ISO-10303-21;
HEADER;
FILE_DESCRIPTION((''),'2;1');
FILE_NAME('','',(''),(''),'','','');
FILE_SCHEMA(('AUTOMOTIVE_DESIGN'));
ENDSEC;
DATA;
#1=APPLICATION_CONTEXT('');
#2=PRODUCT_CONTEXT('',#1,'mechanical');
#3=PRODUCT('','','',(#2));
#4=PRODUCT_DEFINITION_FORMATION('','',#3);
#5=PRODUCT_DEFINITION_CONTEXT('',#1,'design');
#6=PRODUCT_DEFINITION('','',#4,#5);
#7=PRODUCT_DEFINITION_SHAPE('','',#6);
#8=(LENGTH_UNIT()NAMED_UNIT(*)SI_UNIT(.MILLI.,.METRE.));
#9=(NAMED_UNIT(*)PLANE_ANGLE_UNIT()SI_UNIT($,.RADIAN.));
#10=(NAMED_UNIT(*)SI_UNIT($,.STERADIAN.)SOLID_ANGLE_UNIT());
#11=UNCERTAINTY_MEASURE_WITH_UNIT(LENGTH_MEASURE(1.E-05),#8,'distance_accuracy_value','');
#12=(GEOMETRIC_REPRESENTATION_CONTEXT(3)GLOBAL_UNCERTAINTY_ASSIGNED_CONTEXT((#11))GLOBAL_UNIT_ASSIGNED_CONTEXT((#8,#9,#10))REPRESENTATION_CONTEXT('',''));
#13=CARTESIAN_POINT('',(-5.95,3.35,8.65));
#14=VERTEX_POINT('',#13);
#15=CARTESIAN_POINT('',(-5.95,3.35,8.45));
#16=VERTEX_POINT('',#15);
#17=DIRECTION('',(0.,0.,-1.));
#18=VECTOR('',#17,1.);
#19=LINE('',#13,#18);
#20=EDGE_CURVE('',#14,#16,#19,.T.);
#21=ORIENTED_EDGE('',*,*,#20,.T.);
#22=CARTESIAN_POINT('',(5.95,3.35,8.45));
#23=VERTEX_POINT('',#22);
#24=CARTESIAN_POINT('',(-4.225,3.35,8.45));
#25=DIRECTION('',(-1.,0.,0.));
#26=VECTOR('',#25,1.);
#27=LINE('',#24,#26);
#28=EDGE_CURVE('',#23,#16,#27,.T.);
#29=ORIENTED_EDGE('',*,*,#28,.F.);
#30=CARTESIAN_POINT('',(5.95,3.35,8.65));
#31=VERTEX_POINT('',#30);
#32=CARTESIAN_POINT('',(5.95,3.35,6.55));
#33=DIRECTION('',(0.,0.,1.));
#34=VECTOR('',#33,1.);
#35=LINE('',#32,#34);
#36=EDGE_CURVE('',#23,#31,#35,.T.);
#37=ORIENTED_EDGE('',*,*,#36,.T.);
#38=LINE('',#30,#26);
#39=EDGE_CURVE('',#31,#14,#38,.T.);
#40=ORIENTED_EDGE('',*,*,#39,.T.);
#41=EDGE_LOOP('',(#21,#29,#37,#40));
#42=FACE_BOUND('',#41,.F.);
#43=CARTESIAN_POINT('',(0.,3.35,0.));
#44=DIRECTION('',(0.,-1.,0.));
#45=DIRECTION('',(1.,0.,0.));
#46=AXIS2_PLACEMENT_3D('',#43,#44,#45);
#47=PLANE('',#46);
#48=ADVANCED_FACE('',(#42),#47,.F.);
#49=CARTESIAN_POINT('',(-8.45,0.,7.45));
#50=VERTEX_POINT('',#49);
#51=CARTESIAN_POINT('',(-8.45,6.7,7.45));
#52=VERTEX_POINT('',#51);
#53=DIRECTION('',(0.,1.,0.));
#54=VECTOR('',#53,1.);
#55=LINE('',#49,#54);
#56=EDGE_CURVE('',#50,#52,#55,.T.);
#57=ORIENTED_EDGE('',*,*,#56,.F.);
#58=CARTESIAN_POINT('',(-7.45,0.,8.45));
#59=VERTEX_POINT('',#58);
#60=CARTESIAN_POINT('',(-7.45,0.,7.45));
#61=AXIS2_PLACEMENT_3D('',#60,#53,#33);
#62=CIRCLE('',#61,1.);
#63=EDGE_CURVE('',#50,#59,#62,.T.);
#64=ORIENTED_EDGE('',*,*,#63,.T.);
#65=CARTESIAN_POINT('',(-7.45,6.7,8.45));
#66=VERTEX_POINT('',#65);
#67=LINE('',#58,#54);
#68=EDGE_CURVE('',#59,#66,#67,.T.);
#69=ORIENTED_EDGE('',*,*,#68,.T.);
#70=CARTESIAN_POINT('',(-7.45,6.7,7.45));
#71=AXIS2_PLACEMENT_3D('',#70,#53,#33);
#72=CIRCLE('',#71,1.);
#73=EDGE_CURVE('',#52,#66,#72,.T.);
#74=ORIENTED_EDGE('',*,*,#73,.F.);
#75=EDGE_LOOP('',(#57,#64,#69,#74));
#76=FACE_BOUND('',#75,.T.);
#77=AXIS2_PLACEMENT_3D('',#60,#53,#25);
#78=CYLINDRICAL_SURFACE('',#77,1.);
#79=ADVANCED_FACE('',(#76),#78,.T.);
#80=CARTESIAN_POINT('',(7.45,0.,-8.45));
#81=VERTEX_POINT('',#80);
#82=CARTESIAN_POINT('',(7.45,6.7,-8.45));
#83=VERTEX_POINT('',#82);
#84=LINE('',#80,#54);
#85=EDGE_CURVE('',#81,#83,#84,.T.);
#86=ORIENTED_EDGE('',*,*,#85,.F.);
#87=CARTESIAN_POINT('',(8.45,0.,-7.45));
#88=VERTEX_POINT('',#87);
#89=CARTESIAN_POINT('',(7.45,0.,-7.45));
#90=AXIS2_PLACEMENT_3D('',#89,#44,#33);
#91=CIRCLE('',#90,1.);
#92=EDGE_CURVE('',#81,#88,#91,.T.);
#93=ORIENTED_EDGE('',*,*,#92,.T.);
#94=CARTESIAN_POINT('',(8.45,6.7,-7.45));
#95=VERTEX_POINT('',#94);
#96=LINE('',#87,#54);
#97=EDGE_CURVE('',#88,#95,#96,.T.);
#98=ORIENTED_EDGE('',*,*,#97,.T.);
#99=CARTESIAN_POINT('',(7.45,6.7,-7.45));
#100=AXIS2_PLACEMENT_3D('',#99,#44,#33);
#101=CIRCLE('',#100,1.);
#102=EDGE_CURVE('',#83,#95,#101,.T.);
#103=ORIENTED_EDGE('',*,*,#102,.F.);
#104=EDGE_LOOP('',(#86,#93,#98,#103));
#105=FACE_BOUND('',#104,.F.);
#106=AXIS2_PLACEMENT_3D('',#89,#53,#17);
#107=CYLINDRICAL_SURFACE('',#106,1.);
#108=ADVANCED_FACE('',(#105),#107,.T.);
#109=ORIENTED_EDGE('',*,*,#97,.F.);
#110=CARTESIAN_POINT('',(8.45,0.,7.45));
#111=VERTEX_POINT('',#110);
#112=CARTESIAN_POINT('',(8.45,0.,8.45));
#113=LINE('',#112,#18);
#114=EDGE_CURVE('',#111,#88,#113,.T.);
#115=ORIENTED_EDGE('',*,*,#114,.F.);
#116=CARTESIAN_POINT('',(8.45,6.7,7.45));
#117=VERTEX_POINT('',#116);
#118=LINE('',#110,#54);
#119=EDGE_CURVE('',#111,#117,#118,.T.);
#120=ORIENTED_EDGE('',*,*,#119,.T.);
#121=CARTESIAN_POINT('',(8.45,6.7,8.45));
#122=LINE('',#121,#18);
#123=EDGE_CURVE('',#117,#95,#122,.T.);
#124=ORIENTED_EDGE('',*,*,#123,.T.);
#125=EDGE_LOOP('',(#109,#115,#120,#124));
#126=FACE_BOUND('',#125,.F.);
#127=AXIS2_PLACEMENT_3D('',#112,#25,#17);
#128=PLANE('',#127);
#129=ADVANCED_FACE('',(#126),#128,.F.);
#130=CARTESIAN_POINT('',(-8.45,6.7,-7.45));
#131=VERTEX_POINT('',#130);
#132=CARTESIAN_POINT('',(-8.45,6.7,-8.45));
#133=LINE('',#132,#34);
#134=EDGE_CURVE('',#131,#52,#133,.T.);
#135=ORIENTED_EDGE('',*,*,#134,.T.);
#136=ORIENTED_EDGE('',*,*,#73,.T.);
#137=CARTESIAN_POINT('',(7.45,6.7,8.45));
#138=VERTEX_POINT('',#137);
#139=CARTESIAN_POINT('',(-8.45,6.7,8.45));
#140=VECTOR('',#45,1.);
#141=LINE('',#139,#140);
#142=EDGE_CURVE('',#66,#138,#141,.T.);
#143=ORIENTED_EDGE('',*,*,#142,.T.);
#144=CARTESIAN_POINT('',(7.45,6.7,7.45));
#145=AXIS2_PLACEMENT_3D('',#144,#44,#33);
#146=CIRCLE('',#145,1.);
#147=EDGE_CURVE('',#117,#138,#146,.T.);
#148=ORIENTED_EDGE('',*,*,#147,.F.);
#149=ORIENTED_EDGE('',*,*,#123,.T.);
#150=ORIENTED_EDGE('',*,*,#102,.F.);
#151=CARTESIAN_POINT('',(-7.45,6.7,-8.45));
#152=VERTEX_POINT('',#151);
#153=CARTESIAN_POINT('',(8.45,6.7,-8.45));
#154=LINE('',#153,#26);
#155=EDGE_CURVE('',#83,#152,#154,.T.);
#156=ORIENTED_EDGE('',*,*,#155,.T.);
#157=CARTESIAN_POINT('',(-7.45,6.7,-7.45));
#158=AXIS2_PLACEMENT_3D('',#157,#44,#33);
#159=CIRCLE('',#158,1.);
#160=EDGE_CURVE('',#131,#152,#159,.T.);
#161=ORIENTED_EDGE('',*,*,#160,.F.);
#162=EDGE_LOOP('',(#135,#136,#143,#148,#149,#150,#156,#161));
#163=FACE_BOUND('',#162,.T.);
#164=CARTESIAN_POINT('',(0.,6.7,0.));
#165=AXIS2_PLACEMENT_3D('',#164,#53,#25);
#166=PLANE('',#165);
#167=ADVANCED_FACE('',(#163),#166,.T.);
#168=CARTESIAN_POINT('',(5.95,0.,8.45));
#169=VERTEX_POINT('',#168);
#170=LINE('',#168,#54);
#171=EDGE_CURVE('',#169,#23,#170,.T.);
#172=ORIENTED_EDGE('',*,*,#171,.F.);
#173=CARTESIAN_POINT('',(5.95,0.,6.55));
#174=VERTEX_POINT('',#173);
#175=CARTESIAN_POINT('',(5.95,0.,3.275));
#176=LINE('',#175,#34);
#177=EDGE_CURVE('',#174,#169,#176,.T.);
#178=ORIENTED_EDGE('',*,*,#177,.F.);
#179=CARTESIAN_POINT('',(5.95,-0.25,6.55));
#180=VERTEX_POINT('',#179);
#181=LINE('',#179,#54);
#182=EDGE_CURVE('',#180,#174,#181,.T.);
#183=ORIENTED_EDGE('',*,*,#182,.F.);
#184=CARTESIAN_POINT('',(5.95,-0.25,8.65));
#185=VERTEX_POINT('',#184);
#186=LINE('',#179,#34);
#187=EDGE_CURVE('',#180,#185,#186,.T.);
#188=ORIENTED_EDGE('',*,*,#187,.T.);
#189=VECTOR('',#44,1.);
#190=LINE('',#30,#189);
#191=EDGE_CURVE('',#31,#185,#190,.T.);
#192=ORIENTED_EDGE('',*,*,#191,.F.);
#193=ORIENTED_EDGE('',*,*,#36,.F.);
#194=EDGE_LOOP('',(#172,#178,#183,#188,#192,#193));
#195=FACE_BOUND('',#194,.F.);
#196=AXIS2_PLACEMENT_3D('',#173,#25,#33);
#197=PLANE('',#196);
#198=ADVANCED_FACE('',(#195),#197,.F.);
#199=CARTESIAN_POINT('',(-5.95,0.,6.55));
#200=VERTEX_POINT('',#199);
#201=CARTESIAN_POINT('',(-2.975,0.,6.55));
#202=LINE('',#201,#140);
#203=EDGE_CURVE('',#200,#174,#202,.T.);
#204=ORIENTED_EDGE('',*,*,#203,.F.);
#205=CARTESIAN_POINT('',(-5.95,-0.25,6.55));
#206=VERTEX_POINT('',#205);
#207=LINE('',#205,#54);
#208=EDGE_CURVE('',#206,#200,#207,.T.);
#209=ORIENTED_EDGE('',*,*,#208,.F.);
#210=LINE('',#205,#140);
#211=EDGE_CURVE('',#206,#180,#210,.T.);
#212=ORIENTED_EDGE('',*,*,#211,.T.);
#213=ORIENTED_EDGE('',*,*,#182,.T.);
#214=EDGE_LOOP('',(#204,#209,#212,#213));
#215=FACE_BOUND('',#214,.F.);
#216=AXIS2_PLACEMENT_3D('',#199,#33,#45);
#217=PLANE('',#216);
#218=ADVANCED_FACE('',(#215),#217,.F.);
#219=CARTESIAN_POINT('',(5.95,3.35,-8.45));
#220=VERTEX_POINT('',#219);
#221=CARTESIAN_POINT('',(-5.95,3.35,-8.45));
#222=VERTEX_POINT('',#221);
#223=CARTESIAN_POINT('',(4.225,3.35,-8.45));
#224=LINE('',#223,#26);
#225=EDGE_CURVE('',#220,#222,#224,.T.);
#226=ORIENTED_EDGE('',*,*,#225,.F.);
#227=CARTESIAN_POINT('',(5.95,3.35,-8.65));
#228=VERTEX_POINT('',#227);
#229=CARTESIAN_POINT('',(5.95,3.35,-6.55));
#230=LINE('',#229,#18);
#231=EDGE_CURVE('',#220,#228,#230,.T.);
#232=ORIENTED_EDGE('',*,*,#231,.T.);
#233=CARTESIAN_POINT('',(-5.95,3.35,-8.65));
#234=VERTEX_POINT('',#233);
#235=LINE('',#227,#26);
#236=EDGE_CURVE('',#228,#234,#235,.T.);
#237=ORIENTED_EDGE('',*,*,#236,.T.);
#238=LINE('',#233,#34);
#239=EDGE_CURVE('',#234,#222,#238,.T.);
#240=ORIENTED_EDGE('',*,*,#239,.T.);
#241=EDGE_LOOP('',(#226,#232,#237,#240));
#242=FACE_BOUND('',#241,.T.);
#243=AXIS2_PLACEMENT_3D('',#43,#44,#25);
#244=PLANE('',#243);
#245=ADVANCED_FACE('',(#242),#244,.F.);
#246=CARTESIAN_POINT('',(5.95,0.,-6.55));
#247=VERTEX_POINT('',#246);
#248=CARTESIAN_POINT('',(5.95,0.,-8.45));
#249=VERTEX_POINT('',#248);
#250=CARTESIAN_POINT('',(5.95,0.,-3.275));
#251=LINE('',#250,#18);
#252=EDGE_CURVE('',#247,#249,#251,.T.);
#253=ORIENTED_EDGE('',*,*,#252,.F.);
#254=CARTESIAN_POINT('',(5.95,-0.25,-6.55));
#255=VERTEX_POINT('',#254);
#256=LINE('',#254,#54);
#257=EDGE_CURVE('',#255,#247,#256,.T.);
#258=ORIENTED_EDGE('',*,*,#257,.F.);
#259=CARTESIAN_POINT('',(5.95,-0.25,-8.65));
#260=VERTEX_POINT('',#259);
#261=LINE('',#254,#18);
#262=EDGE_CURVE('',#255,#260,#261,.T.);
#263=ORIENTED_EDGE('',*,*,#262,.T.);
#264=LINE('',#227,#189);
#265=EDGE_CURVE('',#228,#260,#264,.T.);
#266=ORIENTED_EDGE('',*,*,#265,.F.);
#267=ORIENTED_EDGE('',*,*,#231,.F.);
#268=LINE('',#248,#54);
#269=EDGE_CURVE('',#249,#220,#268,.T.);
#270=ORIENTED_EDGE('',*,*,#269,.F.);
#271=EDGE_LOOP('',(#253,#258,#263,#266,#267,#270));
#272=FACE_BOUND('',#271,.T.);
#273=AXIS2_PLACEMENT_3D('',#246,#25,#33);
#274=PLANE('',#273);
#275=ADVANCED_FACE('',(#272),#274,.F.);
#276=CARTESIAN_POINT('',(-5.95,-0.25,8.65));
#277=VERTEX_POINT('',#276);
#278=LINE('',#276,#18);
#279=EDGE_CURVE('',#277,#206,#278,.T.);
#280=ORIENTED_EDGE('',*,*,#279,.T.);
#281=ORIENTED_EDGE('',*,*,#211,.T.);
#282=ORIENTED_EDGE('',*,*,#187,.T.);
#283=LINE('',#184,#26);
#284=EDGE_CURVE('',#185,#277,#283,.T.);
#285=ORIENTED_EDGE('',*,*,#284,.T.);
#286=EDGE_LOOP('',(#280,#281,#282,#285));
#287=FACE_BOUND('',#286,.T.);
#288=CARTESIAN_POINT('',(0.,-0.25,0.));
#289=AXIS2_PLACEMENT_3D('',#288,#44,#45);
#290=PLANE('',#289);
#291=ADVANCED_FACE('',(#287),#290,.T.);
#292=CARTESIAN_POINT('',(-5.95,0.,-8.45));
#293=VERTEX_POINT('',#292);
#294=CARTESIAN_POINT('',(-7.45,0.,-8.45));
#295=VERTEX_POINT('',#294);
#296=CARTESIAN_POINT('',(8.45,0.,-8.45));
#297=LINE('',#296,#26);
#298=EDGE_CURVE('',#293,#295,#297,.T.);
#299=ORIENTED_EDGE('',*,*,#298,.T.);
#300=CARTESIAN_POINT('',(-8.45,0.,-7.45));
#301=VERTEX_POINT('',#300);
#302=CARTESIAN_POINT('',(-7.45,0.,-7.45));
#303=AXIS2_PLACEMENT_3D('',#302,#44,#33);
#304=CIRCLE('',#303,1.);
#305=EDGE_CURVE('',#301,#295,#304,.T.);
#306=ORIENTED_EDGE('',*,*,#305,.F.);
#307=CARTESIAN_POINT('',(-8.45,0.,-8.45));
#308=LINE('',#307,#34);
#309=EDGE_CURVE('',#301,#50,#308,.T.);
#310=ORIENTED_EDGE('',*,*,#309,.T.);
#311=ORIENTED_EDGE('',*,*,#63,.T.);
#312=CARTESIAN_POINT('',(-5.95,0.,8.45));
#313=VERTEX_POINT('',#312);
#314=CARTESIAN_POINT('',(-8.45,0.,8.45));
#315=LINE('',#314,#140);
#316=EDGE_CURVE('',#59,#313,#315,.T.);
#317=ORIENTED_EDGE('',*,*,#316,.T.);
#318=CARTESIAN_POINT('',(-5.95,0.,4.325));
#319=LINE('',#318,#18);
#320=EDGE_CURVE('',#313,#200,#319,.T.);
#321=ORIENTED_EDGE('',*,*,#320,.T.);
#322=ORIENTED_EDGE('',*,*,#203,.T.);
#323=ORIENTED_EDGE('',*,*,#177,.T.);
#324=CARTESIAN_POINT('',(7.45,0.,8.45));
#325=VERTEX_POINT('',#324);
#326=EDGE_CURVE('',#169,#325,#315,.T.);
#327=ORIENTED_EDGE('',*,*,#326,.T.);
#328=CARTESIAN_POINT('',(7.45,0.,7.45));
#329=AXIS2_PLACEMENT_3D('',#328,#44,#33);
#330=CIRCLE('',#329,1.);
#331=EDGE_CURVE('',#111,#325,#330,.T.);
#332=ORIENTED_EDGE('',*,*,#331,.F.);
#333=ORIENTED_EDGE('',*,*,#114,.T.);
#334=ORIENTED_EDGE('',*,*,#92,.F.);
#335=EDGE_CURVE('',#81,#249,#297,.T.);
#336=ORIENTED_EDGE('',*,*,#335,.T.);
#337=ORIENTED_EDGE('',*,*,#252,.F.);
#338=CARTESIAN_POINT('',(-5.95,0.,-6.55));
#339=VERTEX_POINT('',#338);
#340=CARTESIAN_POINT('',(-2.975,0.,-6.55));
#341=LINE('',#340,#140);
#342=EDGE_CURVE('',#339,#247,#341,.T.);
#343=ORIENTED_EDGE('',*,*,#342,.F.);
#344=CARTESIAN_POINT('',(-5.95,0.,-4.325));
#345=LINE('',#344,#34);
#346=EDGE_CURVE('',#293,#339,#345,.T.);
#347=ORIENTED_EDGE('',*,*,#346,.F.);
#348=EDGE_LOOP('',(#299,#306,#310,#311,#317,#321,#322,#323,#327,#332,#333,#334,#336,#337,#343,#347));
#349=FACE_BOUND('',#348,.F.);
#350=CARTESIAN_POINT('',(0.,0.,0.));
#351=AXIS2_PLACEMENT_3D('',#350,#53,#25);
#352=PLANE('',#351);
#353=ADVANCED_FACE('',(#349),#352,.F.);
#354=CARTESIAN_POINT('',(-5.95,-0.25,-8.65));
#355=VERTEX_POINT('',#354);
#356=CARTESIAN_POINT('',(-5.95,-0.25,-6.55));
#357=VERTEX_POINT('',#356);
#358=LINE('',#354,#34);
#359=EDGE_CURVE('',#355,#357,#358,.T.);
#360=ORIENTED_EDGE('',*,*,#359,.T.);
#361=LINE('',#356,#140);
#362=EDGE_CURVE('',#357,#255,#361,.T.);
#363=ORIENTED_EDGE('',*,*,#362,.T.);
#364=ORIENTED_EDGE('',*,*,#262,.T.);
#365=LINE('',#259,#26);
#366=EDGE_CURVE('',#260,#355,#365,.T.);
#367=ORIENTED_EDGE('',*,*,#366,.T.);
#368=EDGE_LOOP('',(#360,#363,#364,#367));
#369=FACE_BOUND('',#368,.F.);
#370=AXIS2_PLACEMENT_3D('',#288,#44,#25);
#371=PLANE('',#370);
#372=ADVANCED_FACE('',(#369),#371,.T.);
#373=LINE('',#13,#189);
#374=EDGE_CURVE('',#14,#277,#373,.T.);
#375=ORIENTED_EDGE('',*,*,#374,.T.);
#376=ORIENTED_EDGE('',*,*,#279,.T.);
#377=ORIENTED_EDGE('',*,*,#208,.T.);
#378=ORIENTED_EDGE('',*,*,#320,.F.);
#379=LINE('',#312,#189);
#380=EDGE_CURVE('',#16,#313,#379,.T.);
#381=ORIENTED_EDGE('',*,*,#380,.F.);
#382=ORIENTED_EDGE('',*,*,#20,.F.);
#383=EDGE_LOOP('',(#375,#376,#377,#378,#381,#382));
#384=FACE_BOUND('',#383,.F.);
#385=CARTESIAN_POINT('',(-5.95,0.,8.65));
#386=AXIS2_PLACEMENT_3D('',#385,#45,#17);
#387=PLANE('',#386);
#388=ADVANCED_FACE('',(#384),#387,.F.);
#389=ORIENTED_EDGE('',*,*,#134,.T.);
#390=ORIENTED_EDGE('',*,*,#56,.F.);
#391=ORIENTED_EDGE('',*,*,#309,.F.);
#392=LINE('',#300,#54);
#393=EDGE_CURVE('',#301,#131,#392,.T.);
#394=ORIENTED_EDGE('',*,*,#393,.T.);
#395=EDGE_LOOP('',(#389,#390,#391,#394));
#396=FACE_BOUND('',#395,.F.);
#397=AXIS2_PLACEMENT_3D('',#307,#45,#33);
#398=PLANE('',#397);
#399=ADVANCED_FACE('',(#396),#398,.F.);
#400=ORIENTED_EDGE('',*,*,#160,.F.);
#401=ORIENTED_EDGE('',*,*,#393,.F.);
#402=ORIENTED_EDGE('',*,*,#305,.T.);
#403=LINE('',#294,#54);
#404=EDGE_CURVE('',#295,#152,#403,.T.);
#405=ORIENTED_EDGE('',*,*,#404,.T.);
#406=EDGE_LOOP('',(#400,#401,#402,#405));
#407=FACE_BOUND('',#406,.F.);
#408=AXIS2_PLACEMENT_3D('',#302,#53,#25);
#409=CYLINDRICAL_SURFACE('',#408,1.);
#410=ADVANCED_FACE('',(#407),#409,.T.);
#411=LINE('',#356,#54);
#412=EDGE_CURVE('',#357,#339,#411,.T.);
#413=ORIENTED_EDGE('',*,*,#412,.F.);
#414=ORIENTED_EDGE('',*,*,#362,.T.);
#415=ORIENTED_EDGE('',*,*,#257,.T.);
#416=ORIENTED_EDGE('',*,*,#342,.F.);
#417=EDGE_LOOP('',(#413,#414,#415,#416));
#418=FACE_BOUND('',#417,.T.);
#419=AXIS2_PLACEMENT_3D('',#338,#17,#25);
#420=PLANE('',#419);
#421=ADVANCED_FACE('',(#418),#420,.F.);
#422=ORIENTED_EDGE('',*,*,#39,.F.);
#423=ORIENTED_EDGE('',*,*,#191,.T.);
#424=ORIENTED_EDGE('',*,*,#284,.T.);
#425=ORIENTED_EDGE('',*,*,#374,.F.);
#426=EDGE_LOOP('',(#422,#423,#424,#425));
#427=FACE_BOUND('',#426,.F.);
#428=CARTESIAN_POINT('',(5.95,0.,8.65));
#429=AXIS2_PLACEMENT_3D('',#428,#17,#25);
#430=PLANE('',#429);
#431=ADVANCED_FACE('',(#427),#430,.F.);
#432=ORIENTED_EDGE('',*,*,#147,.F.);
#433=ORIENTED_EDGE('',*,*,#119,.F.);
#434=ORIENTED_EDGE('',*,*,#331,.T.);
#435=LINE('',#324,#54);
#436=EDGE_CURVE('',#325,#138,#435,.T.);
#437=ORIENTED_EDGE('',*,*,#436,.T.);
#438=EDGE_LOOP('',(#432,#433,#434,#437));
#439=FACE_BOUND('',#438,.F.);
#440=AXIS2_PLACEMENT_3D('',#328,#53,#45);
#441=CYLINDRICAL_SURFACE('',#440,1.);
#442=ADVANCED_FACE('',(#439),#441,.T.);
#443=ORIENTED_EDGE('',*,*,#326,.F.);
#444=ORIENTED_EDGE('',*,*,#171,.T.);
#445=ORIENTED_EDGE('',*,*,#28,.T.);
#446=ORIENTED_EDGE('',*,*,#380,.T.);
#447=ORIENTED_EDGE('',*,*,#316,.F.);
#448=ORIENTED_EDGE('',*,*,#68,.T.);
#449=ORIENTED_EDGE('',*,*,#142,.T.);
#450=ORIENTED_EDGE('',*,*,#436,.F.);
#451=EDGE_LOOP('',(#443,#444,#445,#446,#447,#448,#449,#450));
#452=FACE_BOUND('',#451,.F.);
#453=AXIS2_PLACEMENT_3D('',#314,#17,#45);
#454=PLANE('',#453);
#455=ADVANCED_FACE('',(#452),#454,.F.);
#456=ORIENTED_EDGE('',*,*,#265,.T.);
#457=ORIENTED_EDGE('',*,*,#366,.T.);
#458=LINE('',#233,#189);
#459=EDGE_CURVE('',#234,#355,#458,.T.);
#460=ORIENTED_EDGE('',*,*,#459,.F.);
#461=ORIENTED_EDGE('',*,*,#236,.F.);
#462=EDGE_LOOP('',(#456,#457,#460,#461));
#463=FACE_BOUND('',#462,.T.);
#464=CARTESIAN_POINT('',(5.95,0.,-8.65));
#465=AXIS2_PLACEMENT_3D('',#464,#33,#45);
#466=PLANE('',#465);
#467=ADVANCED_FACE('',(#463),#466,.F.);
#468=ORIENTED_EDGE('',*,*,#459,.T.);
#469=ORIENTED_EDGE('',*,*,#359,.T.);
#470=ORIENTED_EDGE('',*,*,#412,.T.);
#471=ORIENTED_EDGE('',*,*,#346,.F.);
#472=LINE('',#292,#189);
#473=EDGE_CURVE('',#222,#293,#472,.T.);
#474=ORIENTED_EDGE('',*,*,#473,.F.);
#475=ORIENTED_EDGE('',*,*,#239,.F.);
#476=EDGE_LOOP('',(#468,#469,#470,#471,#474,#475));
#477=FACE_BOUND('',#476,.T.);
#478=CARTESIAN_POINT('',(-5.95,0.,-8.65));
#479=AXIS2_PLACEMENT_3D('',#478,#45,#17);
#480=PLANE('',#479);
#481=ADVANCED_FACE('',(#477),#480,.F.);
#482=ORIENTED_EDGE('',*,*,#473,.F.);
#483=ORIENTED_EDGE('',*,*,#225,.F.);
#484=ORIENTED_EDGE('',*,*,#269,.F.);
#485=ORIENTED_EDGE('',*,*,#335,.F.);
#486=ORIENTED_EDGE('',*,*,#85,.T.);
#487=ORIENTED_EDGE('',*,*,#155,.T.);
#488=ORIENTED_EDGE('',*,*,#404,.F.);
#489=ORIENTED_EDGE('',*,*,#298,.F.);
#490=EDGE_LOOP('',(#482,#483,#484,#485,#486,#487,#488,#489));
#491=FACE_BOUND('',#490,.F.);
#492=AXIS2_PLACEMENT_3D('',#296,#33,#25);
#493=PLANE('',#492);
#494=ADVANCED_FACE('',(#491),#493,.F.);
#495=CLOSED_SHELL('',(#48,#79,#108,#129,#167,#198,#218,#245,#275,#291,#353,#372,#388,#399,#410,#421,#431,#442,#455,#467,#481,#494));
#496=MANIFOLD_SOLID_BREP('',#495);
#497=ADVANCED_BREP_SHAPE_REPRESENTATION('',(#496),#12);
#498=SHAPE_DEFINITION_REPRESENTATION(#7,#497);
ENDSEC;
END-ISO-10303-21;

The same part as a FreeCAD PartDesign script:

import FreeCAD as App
import Part
import Sketcher

V = App.Vector


def edges_at(feature, points):
    """Names of the edges that pass closest to the given points."""
    edges = feature.Shape.Edges
    near = lambda p: min(range(len(edges)), key=lambda i: edges[i].distToShape(Part.Vertex(*p))[0])
    return sorted({f"Edge{near(p) + 1}" for p in points})


def add_polygon(sketch, points):
    """Adds a closed chain of lines whose ends are joined by coincident constraints."""
    first, n = sketch.GeometryCount, len(points)
    for a, b in zip(points, points[1:] + points[:1]):
        sketch.addGeometry(Part.LineSegment(App.Vector(*a, 0), App.Vector(*b, 0)), False)
    for i in range(n):
        sketch.addConstraint(Sketcher.Constraint("Coincident", first + i, 2, first + (i + 1) % n, 1))

doc = App.newDocument("Part")
params = doc.addObject("Spreadsheet::Sheet", "Params")
for row, (alias, value) in enumerate([
    ("sketch1_width", "16.9 mm"),
    ("pad1_length", "6.7 mm"),
    ("fillet_radius", "1 mm"),
    ("sketch2_width", "11.9 mm"),
    ("sketch2_height", "2.1 mm"),
    ("pad2_length", "0.25 mm"),
    ("pad2_length2", "3.35 mm"),
], start=1):
    params.set(f"A{row}", alias)
    params.set(f"B{row}", "=" + value)
    params.setAlias(f"B{row}", alias)

body = doc.addObject("PartDesign::Body", "Body")

sketch1 = body.newObject("Sketcher::SketchObject", "Sketch")
sketch1.AttachmentSupport = (doc.getObject("XZ_Plane"), [""])
sketch1.MapMode = "FlatFace"
add_polygon(sketch1, [(-8, -8), (-8, 8), (8, 8), (8, -8)])
sketch1.addConstraint([
    Sketcher.Constraint("Vertical", 0),
    Sketcher.Constraint("Horizontal", 1),
    Sketcher.Constraint("Vertical", 2),
    Sketcher.Constraint("Horizontal", 3),
    Sketcher.Constraint("Symmetric", 0, 2, 2, 2, -1, 1),
    Sketcher.Constraint("Equal", 3, 0),
    Sketcher.Constraint("DistanceX", 1, 1, 1, 2, 16.9),
])
sketch1.setExpression("Constraints[10]", "Params.sketch1_width")
pad1 = body.newObject("PartDesign::Pad", "Pad")
pad1.Profile = sketch1
pad1.setExpression("Length", "Params.pad1_length")
pad1.Reversed = True
doc.recompute()

fillet = body.newObject("PartDesign::Fillet", "Fillet")
fillet.Base = (pad1, edges_at(pad1, [
    (8.45, 3.35, -8.45),
    (8.45, 3.35, 8.45),
    (-8.45, 3.35, 8.45),
    (-8.45, 3.35, -8.45),
]))
fillet.setExpression("Radius", "Params.fillet_radius")

sketch2 = body.newObject("Sketcher::SketchObject", "Sketch001")
sketch2.AttachmentSupport = (doc.getObject("XZ_Plane"), [""])
sketch2.MapMode = "FlatFace"
add_polygon(sketch2, [(6, 6.5), (6, 8.7), (-6, 8.7), (-6, 6.5)])
sketch2.addConstraint([
    Sketcher.Constraint("Vertical", 0),
    Sketcher.Constraint("Horizontal", 1),
    Sketcher.Constraint("Vertical", 2),
    Sketcher.Constraint("Horizontal", 3),
    Sketcher.Constraint("DistanceX", 1, 2, 1, 1, 11.9),
    Sketcher.Constraint("DistanceY", 0, 1, 0, 2, 2.1),
    Sketcher.Constraint("DistanceX", -1, 1, 0, 2, 5.95),
    Sketcher.Constraint("DistanceY", -1, 1, 0, 2, 8.65),
])
sketch2.setExpression("Constraints[8]", "Params.sketch2_width")
sketch2.setExpression("Constraints[9]", "Params.sketch2_height")
pad2 = body.newObject("PartDesign::Pad", "Pad001")
pad2.Profile = sketch2
pad2.Type = "TwoLengths"
pad2.setExpression("Length", "Params.pad2_length")
pad2.setExpression("Length2", "Params.pad2_length2")
doc.recompute()

mirrored = body.newObject("PartDesign::Mirrored", "Mirrored")
mirrored.Originals = [pad2]
mirrored.MirrorPlane = (doc.getObject("XY_Plane"), [""])
body.Tip = mirrored

doc.recompute()
